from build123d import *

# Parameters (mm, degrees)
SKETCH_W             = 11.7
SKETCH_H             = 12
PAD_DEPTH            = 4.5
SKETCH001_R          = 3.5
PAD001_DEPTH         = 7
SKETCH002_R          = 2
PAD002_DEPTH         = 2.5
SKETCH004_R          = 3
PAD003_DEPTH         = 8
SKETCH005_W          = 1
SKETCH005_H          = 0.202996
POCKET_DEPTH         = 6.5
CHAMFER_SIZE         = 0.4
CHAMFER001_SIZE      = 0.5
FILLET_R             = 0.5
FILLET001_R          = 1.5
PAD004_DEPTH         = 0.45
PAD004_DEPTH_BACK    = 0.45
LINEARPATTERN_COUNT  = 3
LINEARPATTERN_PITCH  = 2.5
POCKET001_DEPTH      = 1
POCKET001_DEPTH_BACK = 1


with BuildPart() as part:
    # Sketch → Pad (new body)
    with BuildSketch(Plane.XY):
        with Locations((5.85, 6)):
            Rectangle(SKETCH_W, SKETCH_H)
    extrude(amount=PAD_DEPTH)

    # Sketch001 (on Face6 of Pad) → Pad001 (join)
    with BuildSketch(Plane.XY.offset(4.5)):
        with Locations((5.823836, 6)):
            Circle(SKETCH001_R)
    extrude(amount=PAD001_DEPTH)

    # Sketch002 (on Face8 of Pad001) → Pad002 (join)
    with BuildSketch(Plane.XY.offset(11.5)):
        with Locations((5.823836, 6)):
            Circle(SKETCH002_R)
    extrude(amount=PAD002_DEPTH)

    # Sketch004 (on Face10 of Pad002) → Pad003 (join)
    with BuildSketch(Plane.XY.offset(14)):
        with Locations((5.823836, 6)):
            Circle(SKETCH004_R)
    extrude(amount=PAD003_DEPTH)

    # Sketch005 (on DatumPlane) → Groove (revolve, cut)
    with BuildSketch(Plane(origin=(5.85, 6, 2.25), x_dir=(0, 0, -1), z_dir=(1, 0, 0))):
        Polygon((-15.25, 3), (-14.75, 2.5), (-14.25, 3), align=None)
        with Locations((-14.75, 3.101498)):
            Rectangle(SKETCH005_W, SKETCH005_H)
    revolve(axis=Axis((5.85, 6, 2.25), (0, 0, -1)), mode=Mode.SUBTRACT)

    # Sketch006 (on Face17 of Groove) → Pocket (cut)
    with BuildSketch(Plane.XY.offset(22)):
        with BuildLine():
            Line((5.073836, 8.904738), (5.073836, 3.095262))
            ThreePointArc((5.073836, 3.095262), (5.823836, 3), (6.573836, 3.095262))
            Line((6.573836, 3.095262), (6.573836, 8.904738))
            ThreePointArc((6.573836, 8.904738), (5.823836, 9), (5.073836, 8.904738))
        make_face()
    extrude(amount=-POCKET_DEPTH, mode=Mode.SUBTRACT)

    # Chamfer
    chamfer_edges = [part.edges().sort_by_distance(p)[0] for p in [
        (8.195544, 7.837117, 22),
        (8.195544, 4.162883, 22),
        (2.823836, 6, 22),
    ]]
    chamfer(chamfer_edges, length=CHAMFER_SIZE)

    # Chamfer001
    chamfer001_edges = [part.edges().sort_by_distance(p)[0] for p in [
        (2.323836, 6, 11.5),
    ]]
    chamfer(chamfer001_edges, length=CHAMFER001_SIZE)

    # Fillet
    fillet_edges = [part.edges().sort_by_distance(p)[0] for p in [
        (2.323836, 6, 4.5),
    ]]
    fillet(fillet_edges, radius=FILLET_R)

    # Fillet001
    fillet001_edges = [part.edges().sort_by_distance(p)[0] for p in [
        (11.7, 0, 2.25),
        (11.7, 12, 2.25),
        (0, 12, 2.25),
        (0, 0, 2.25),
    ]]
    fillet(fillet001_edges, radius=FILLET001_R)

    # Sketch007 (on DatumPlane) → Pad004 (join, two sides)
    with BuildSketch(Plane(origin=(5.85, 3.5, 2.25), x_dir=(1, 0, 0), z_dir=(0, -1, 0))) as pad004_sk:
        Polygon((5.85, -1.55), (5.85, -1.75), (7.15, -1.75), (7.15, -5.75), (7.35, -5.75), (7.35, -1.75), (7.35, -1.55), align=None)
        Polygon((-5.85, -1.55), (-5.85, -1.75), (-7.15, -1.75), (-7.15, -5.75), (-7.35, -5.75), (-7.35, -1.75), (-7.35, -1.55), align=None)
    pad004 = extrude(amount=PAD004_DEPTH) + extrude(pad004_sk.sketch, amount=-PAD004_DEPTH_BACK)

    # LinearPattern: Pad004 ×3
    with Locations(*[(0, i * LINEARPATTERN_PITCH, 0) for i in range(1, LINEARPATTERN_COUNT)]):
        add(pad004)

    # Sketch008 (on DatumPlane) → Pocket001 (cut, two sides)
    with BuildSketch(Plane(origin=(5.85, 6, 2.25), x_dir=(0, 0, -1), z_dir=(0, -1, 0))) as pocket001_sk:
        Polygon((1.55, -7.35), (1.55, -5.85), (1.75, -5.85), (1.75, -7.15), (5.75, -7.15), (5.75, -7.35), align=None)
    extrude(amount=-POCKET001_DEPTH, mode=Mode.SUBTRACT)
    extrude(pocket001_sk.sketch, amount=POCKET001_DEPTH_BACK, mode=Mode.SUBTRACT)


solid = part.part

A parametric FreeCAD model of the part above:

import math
import FreeCAD as App
import Part
import Sketcher

V = App.Vector


def edges_at(feature, points):
    """Names of the edges that pass closest to the given points."""
    edges = feature.Shape.Edges
    near = lambda p: min(range(len(edges)), key=lambda i: edges[i].distToShape(Part.Vertex(*p))[0])
    return sorted({f"Edge{near(p) + 1}" for p in points})

doc = App.newDocument("Part")
body = doc.addObject("PartDesign::Body", "Body")

sketch1 = doc.addObject("Sketcher::SketchObject", "Sketch")
body.addObject(sketch1)
sketch1.AttachmentSupport = (doc.XY_Plane, [""])
sketch1.MapMode = "FlatFace"
sketch1.addGeometry(Part.LineSegment(V(0, 12, 0), V(0, 0, 0)), False)
sketch1.addGeometry(Part.LineSegment(V(0, 0, 0), V(12, 0, 0)), False)
sketch1.addGeometry(Part.LineSegment(V(12, 0, 0), V(12, 12, 0)), False)
sketch1.addGeometry(Part.LineSegment(V(12, 12, 0), V(0, 12, 0)), False)
sketch1.addConstraint(Sketcher.Constraint("Coincident", 0, 2, 1, 1))
sketch1.addConstraint(Sketcher.Constraint("Coincident", 1, 2, 2, 1))
sketch1.addConstraint(Sketcher.Constraint("Coincident", 2, 2, 3, 1))
sketch1.addConstraint(Sketcher.Constraint("Coincident", 3, 2, 0, 1))
sketch1.addConstraint(Sketcher.Constraint("Vertical", 0))
sketch1.addConstraint(Sketcher.Constraint("Horizontal", 1))
sketch1.addConstraint(Sketcher.Constraint("Vertical", 2))
sketch1.addConstraint(Sketcher.Constraint("Horizontal", 3))
sketch1.addConstraint(Sketcher.Constraint("Coincident", 0, 2, -1, 1))
sketch1.addConstraint(Sketcher.Constraint("DistanceY", 0, 2, 0, 1, 12.0))
sketch1.addConstraint(Sketcher.Constraint("DistanceX", 1, 1, 1, 2, 11.7))
pad1 = doc.addObject("PartDesign::Pad", "Pad")
body.addObject(pad1)
pad1.Profile = sketch1
pad1.Length = 4.5

sketch2 = doc.addObject("Sketcher::SketchObject", "Sketch001")
body.addObject(sketch2)
sketch2.AttachmentSupport = (doc.XY_Plane, [""])
sketch2.MapMode = "FlatFace"
sketch2.AttachmentOffset = App.Placement(V(0, 0, 4.5), App.Rotation())
sketch2.addGeometry(Part.Circle(V(5.8, 6, 0), V(0, 0, 1), 3.5), False)
sketch2.addConstraint(Sketcher.Constraint("Diameter", 0, 7.0))
sketch2.addConstraint(Sketcher.Constraint("DistanceY", -1, 1, 0, 3, 6.0))
sketch2.addConstraint(Sketcher.Constraint("DistanceX", -1, 1, 0, 3, 5.823836))
pad2 = doc.addObject("PartDesign::Pad", "Pad001")
body.addObject(pad2)
pad2.Profile = sketch2
pad2.Length = 7

sketch3 = doc.addObject("Sketcher::SketchObject", "Sketch002")
body.addObject(sketch3)
sketch3.AttachmentSupport = (doc.XY_Plane, [""])
sketch3.MapMode = "FlatFace"
sketch3.AttachmentOffset = App.Placement(V(0, 0, 11.5), App.Rotation())
sketch3.addGeometry(Part.Circle(V(5.8, 6, 0), V(0, 0, 1), 2), False)
sketch3.addConstraint(Sketcher.Constraint("Diameter", 0, 4.0))
sketch3.addConstraint(Sketcher.Constraint("DistanceY", -1, 1, 0, 3, 6.0))
sketch3.addConstraint(Sketcher.Constraint("DistanceX", -1, 1, 0, 3, 5.823836))
pad3 = doc.addObject("PartDesign::Pad", "Pad002")
body.addObject(pad3)
pad3.Profile = sketch3
pad3.Length = 2.5

sketch4 = doc.addObject("Sketcher::SketchObject", "Sketch003")
body.addObject(sketch4)
sketch4.AttachmentSupport = (doc.XY_Plane, [""])
sketch4.MapMode = "FlatFace"
sketch4.AttachmentOffset = App.Placement(V(0, 0, 14), App.Rotation())
sketch4.addGeometry(Part.Circle(V(5.8, 6, 0), V(0, 0, 1), 3), False)
sketch4.addConstraint(Sketcher.Constraint("Diameter", 0, 6.0))
sketch4.addConstraint(Sketcher.Constraint("DistanceY", -1, 1, 0, 3, 6.0))
sketch4.addConstraint(Sketcher.Constraint("DistanceX", -1, 1, 0, 3, 5.823836))
pad4 = doc.addObject("PartDesign::Pad", "Pad003")
body.addObject(pad4)
pad4.Profile = sketch4
pad4.Length = 8

sketch5 = doc.addObject("Sketcher::SketchObject", "Sketch004")
body.addObject(sketch5)
sketch5.AttachmentSupport = (doc.YZ_Plane, [""])
sketch5.MapMode = "FlatFace"
sketch5.AttachmentOffset = App.Placement(V(0, 0, 5.85), App.Rotation())
sketch5.addGeometry(Part.LineSegment(V(9, 17.5, 0), V(8.5, 17, 0)), False)
sketch5.addGeometry(Part.LineSegment(V(8.5, 17, 0), V(9, 16.5, 0)), False)
sketch5.addGeometry(Part.LineSegment(V(9, 16.5, 0), V(9.2, 16.5, 0)), False)
sketch5.addGeometry(Part.LineSegment(V(9.2, 16.5, 0), V(9.2, 17.5, 0)), False)
sketch5.addGeometry(Part.LineSegment(V(9.2, 17.5, 0), V(9, 17.5, 0)), False)
sketch5.addGeometry(Part.LineSegment(V(6, 17.5, 0), V(6, 16.5, 0)), True)
sketch5.addConstraint(Sketcher.Constraint("Coincident", 0, 2, 1, 1))
sketch5.addConstraint(Sketcher.Constraint("Coincident", 1, 2, 2, 1))
sketch5.addConstraint(Sketcher.Constraint("Coincident", 2, 2, 3, 1))
sketch5.addConstraint(Sketcher.Constraint("Coincident", 3, 2, 4, 1))
sketch5.addConstraint(Sketcher.Constraint("Coincident", 4, 2, 0, 1))
sketch5.addConstraint(Sketcher.Constraint("Horizontal", 2))
sketch5.addConstraint(Sketcher.Constraint("Vertical", 3))
sketch5.addConstraint(Sketcher.Constraint("Horizontal", 4))
sketch5.addConstraint(Sketcher.Constraint("Vertical", 5))
sketch5.addConstraint(Sketcher.Constraint("Perpendicular", 0, 1))
sketch5.addConstraint(Sketcher.Constraint("Horizontal", 4, 2, 5, 1))
sketch5.addConstraint(Sketcher.Constraint("Horizontal", 2, 2, 5, 2))
sketch5.addConstraint(Sketcher.Constraint("Vertical", 1, 2, 4, 2))
sketch5.addConstraint(Sketcher.Constraint("Equal", 0, 1))
sketch5.addConstraint(Sketcher.Constraint("DistanceY", 3, 1, 3, 2, 1.0))
sketch5.addConstraint(Sketcher.Constraint("DistanceY", -1, 1, 0, 2, 17.0))
sketch5.addConstraint(Sketcher.Constraint("DistanceX", -1, 1, 1, 2, 9.0))
sketch5.addConstraint(Sketcher.Constraint("DistanceX", -1, 1, 5, 1, 6.0))
sketch5.addConstraint(Sketcher.Constraint("DistanceX", 2, 1, 2, 2, 0.202996))
groove = doc.addObject("PartDesign::Groove", "Groove")
body.addObject(groove)
groove.Profile = sketch5
groove.ReferenceAxis = (sketch5, ["Axis0"])
groove.Angle = 360

sketch6 = doc.addObject("Sketcher::SketchObject", "Sketch005")
body.addObject(sketch6)
sketch6.AttachmentSupport = (doc.XY_Plane, [""])
sketch6.MapMode = "FlatFace"
sketch6.AttachmentOffset = App.Placement(V(0, 0, 22), App.Rotation())
sketch6.addGeometry(Part.LineSegment(V(5.1, 8.9, 0), V(5.1, 3.1, 0)), False)
sketch6.addGeometry(Part.ArcOfCircle(Part.Circle(V(5.8, 6, 0), V(0, 0, 1), 3), math.radians(-104), math.radians(-76)), False)
sketch6.addGeometry(Part.LineSegment(V(6.6, 3.1, 0), V(6.6, 8.9, 0)), False)
sketch6.addGeometry(Part.ArcOfCircle(Part.Circle(V(5.8, 6, 0), V(0, 0, 1), 3), math.radians(76), math.radians(104)), False)
sketch6.addConstraint(Sketcher.Constraint("Coincident", 0, 2, 1, 1))
sketch6.addConstraint(Sketcher.Constraint("Coincident", 1, 2, 2, 1))
sketch6.addConstraint(Sketcher.Constraint("Coincident", 2, 2, 3, 1))
sketch6.addConstraint(Sketcher.Constraint("Coincident", 3, 2, 0, 1))
sketch6.addConstraint(Sketcher.Constraint("Vertical", 0))
sketch6.addConstraint(Sketcher.Constraint("Vertical", 2))
sketch6.addConstraint(Sketcher.Constraint("Equal", 1, 3))
sketch6.addConstraint(Sketcher.Constraint("Horizontal", 0, 2, 1, 2))
sketch6.addConstraint(Sketcher.Constraint("Horizontal", 2, 2, 3, 2))
sketch6.addConstraint(Sketcher.Constraint("DistanceX", 0, 2, 1, 2, 1.5))
sketch6.addConstraint(Sketcher.Constraint("Radius", 1, 3.000015))
sketch6.addConstraint(Sketcher.Constraint("DistanceY", 0, 2, 0, 1, 5.809476))
sketch6.addConstraint(Sketcher.Constraint("DistanceY", -1, 1, 0, 2, 3.095262))
sketch6.addConstraint(Sketcher.Constraint("DistanceX", -1, 1, 1, 3, 5.823836))
pocket1 = doc.addObject("PartDesign::Pocket", "Pocket")
body.addObject(pocket1)
pocket1.Profile = sketch6
pocket1.Length = 6.5
doc.recompute()

chamfer = doc.addObject("PartDesign::Chamfer", "Chamfer")
body.addObject(chamfer)
chamfer.Base = (pocket1, edges_at(pocket1, [(8.824, 6, 22), (8.824, 6, 22), (2.824, 6, 22)]))
chamfer.Size = 0.4
doc.recompute()

chamfer2 = doc.addObject("PartDesign::Chamfer", "Chamfer001")
body.addObject(chamfer2)
chamfer2.Base = (chamfer, edges_at(chamfer, [(2.324, 6, 11.5)]))
chamfer2.Size = 0.5
doc.recompute()

fillet = doc.addObject("PartDesign::Fillet", "Fillet")
body.addObject(fillet)
fillet.Base = (chamfer2, edges_at(chamfer2, [(2.324, 6, 4.5)]))
fillet.Radius = 0.5
doc.recompute()

fillet2 = doc.addObject("PartDesign::Fillet", "Fillet001")
body.addObject(fillet2)
fillet2.Base = (fillet, edges_at(fillet, [
    (11.7, 0, 2.25),
    (11.7, 12, 2.25),
    (0, 12, 2.25),
    (0, 0, 2.25),
]))
fillet2.Radius = 1.5

sketch7 = doc.addObject("Sketcher::SketchObject", "Sketch006")
body.addObject(sketch7)
sketch7.AttachmentSupport = (doc.XZ_Plane, [""])
sketch7.MapMode = "FlatFace"
sketch7.AttachmentOffset = App.Placement(V(0, 0, -3.5), App.Rotation())
sketch7.addGeometry(Part.LineSegment(V(11.7, 0.7, 0), V(11.7, 0.5, 0)), False)
sketch7.addGeometry(Part.LineSegment(V(11.7, 0.5, 0), V(13, 0.5, 0)), False)
sketch7.addGeometry(Part.LineSegment(V(13, 0.5, 0), V(13, -3.5, 0)), False)
sketch7.addGeometry(Part.LineSegment(V(13, -3.5, 0), V(13.2, -3.5, 0)), False)
sketch7.addGeometry(Part.LineSegment(V(13.2, -3.5, 0), V(13.2, 0.7, 0)), False)
sketch7.addGeometry(Part.LineSegment(V(13.2, 0.7, 0), V(11.7, 0.7, 0)), False)
sketch7.addGeometry(Part.LineSegment(V(0, 0.5, 0), V(0, 0.7, 0)), False)
sketch7.addGeometry(Part.LineSegment(V(0, 0.7, 0), V(-1.5, 0.7, 0)), False)
sketch7.addGeometry(Part.LineSegment(V(-1.5, 0.7, 0), V(-1.5, -3.5, 0)), False)
sketch7.addGeometry(Part.LineSegment(V(-1.5, -3.5, 0), V(-1.3, -3.5, 0)), False)
sketch7.addGeometry(Part.LineSegment(V(-1.3, -3.5, 0), V(-1.3, 0.5, 0)), False)
sketch7.addGeometry(Part.LineSegment(V(-1.3, 0.5, 0), V(0, 0.5, 0)), False)
sketch7.addConstraint(Sketcher.Constraint("Coincident", 0, 2, 1, 1))
sketch7.addConstraint(Sketcher.Constraint("Coincident", 1, 2, 2, 1))
sketch7.addConstraint(Sketcher.Constraint("Coincident", 2, 2, 3, 1))
sketch7.addConstraint(Sketcher.Constraint("Coincident", 3, 2, 4, 1))
sketch7.addConstraint(Sketcher.Constraint("Coincident", 4, 2, 5, 1))
sketch7.addConstraint(Sketcher.Constraint("Coincident", 5, 2, 0, 1))
sketch7.addConstraint(Sketcher.Constraint("Coincident", 6, 2, 7, 1))
sketch7.addConstraint(Sketcher.Constraint("Coincident", 7, 2, 8, 1))
sketch7.addConstraint(Sketcher.Constraint("Coincident", 8, 2, 9, 1))
sketch7.addConstraint(Sketcher.Constraint("Coincident", 9, 2, 10, 1))
sketch7.addConstraint(Sketcher.Constraint("Coincident", 10, 2, 11, 1))
sketch7.addConstraint(Sketcher.Constraint("Coincident", 11, 2, 6, 1))
sketch7.addConstraint(Sketcher.Constraint("Vertical", 0))
sketch7.addConstraint(Sketcher.Constraint("Horizontal", 1))
sketch7.addConstraint(Sketcher.Constraint("Vertical", 2))
sketch7.addConstraint(Sketcher.Constraint("Horizontal", 3))
sketch7.addConstraint(Sketcher.Constraint("Vertical", 4))
sketch7.addConstraint(Sketcher.Constraint("Horizontal", 5))
sketch7.addConstraint(Sketcher.Constraint("Vertical", 6))
sketch7.addConstraint(Sketcher.Constraint("Horizontal", 7))
sketch7.addConstraint(Sketcher.Constraint("Vertical", 8))
sketch7.addConstraint(Sketcher.Constraint("Horizontal", 9))
sketch7.addConstraint(Sketcher.Constraint("Vertical", 10))
sketch7.addConstraint(Sketcher.Constraint("Horizontal", 11))
sketch7.addConstraint(Sketcher.Constraint("PointOnObject", 6, 2, -2))
sketch7.addConstraint(Sketcher.Constraint("Horizontal", 5, 2, 6, 2))
sketch7.addConstraint(Sketcher.Constraint("Horizontal", 3, 2, 8, 2))
sketch7.addConstraint(Sketcher.Constraint("Horizontal", 1, 2, 10, 2))
sketch7.addConstraint(Sketcher.Constraint("Equal", 5, 7))
sketch7.addConstraint(Sketcher.Constraint("Equal", 3, 9))
sketch7.addConstraint(Sketcher.Constraint("Equal", 9, 0))
sketch7.addConstraint(Sketcher.Constraint("DistanceY", 2, 2, 2, 1, 4.0))
sketch7.addConstraint(Sketcher.Constraint("DistanceX", 1, 1, 1, 2, 1.3))
sketch7.addConstraint(Sketcher.Constraint("DistanceX", 3, 1, 3, 2, 0.2))
sketch7.addConstraint(Sketcher.Constraint("DistanceX", -1, 1, 1, 2, 13.0))
sketch7.addConstraint(Sketcher.Constraint("DistanceY", -1, 1, 0, 2, 0.5))
pad5 = doc.addObject("PartDesign::Pad", "Pad004")
body.addObject(pad5)
pad5.Profile = sketch7
pad5.Type = "TwoLengths"
pad5.Length = 0.45
pad5.Length2 = 0.45
doc.recompute()

linearpattern = doc.addObject("PartDesign::LinearPattern", "LinearPattern")
body.addObject(linearpattern)
linearpattern.Originals = [pad5]
linearpattern.Direction = (doc.Y_Axis, [""])
linearpattern.Mode = "offset"
linearpattern.Offset = 2.5
linearpattern.Occurrences = 3
body.Tip = linearpattern

sketch8 = doc.addObject("Sketcher::SketchObject", "Sketch007")
body.addObject(sketch8)
sketch8.AttachmentSupport = (doc.XZ_Plane, [""])
sketch8.MapMode = "FlatFace"
sketch8.AttachmentOffset = App.Placement(V(0, 0, -6), App.Rotation())
sketch8.addGeometry(Part.LineSegment(V(0, 0.7, 0), V(-1.5, 0.7, 0)), False)
sketch8.addGeometry(Part.LineSegment(V(-1.5, 0.7, 0), V(-1.5, -3.5, 0)), False)
sketch8.addGeometry(Part.LineSegment(V(-1.5, -3.5, 0), V(-1.3, -3.5, 0)), False)
sketch8.addGeometry(Part.LineSegment(V(-1.3, -3.5, 0), V(-1.3, 0.5, 0)), False)
sketch8.addGeometry(Part.LineSegment(V(-1.3, 0.5, 0), V(0, 0.5, 0)), False)
sketch8.addGeometry(Part.LineSegment(V(0, 0.5, 0), V(0, 0.7, 0)), False)
sketch8.addConstraint(Sketcher.Constraint("Coincident", 0, 2, 1, 1))
sketch8.addConstraint(Sketcher.Constraint("Coincident", 1, 2, 2, 1))
sketch8.addConstraint(Sketcher.Constraint("Coincident", 2, 2, 3, 1))
sketch8.addConstraint(Sketcher.Constraint("Coincident", 3, 2, 4, 1))
sketch8.addConstraint(Sketcher.Constraint("Coincident", 4, 2, 5, 1))
sketch8.addConstraint(Sketcher.Constraint("Coincident", 5, 2, 0, 1))
sketch8.addConstraint(Sketcher.Constraint("Horizontal", 0))
sketch8.addConstraint(Sketcher.Constraint("Vertical", 1))
sketch8.addConstraint(Sketcher.Constraint("Horizontal", 2))
sketch8.addConstraint(Sketcher.Constraint("Vertical", 3))
sketch8.addConstraint(Sketcher.Constraint("Horizontal", 4))
sketch8.addConstraint(Sketcher.Constraint("Vertical", 5))
sketch8.addConstraint(Sketcher.Constraint("PointOnObject", 4, 2, -2))
sketch8.addConstraint(Sketcher.Constraint("Equal", 2, 5))
sketch8.addConstraint(Sketcher.Constraint("DistanceY", 3, 1, 3, 2, 4.0))
sketch8.addConstraint(Sketcher.Constraint("DistanceX", 0, 2, 0, 1, 1.5))
sketch8.addConstraint(Sketcher.Constraint("DistanceX", 2, 1, 2, 2, 0.2))
sketch8.addConstraint(Sketcher.Constraint("DistanceY", -1, 1, 0, 2, 0.7))
pocket2 = doc.addObject("PartDesign::Pocket", "Pocket001")
body.addObject(pocket2)
pocket2.Profile = sketch8
pocket2.Type = "TwoLengths"
pocket2.Length = 1
pocket2.Length2 = 1

doc.recompute()
